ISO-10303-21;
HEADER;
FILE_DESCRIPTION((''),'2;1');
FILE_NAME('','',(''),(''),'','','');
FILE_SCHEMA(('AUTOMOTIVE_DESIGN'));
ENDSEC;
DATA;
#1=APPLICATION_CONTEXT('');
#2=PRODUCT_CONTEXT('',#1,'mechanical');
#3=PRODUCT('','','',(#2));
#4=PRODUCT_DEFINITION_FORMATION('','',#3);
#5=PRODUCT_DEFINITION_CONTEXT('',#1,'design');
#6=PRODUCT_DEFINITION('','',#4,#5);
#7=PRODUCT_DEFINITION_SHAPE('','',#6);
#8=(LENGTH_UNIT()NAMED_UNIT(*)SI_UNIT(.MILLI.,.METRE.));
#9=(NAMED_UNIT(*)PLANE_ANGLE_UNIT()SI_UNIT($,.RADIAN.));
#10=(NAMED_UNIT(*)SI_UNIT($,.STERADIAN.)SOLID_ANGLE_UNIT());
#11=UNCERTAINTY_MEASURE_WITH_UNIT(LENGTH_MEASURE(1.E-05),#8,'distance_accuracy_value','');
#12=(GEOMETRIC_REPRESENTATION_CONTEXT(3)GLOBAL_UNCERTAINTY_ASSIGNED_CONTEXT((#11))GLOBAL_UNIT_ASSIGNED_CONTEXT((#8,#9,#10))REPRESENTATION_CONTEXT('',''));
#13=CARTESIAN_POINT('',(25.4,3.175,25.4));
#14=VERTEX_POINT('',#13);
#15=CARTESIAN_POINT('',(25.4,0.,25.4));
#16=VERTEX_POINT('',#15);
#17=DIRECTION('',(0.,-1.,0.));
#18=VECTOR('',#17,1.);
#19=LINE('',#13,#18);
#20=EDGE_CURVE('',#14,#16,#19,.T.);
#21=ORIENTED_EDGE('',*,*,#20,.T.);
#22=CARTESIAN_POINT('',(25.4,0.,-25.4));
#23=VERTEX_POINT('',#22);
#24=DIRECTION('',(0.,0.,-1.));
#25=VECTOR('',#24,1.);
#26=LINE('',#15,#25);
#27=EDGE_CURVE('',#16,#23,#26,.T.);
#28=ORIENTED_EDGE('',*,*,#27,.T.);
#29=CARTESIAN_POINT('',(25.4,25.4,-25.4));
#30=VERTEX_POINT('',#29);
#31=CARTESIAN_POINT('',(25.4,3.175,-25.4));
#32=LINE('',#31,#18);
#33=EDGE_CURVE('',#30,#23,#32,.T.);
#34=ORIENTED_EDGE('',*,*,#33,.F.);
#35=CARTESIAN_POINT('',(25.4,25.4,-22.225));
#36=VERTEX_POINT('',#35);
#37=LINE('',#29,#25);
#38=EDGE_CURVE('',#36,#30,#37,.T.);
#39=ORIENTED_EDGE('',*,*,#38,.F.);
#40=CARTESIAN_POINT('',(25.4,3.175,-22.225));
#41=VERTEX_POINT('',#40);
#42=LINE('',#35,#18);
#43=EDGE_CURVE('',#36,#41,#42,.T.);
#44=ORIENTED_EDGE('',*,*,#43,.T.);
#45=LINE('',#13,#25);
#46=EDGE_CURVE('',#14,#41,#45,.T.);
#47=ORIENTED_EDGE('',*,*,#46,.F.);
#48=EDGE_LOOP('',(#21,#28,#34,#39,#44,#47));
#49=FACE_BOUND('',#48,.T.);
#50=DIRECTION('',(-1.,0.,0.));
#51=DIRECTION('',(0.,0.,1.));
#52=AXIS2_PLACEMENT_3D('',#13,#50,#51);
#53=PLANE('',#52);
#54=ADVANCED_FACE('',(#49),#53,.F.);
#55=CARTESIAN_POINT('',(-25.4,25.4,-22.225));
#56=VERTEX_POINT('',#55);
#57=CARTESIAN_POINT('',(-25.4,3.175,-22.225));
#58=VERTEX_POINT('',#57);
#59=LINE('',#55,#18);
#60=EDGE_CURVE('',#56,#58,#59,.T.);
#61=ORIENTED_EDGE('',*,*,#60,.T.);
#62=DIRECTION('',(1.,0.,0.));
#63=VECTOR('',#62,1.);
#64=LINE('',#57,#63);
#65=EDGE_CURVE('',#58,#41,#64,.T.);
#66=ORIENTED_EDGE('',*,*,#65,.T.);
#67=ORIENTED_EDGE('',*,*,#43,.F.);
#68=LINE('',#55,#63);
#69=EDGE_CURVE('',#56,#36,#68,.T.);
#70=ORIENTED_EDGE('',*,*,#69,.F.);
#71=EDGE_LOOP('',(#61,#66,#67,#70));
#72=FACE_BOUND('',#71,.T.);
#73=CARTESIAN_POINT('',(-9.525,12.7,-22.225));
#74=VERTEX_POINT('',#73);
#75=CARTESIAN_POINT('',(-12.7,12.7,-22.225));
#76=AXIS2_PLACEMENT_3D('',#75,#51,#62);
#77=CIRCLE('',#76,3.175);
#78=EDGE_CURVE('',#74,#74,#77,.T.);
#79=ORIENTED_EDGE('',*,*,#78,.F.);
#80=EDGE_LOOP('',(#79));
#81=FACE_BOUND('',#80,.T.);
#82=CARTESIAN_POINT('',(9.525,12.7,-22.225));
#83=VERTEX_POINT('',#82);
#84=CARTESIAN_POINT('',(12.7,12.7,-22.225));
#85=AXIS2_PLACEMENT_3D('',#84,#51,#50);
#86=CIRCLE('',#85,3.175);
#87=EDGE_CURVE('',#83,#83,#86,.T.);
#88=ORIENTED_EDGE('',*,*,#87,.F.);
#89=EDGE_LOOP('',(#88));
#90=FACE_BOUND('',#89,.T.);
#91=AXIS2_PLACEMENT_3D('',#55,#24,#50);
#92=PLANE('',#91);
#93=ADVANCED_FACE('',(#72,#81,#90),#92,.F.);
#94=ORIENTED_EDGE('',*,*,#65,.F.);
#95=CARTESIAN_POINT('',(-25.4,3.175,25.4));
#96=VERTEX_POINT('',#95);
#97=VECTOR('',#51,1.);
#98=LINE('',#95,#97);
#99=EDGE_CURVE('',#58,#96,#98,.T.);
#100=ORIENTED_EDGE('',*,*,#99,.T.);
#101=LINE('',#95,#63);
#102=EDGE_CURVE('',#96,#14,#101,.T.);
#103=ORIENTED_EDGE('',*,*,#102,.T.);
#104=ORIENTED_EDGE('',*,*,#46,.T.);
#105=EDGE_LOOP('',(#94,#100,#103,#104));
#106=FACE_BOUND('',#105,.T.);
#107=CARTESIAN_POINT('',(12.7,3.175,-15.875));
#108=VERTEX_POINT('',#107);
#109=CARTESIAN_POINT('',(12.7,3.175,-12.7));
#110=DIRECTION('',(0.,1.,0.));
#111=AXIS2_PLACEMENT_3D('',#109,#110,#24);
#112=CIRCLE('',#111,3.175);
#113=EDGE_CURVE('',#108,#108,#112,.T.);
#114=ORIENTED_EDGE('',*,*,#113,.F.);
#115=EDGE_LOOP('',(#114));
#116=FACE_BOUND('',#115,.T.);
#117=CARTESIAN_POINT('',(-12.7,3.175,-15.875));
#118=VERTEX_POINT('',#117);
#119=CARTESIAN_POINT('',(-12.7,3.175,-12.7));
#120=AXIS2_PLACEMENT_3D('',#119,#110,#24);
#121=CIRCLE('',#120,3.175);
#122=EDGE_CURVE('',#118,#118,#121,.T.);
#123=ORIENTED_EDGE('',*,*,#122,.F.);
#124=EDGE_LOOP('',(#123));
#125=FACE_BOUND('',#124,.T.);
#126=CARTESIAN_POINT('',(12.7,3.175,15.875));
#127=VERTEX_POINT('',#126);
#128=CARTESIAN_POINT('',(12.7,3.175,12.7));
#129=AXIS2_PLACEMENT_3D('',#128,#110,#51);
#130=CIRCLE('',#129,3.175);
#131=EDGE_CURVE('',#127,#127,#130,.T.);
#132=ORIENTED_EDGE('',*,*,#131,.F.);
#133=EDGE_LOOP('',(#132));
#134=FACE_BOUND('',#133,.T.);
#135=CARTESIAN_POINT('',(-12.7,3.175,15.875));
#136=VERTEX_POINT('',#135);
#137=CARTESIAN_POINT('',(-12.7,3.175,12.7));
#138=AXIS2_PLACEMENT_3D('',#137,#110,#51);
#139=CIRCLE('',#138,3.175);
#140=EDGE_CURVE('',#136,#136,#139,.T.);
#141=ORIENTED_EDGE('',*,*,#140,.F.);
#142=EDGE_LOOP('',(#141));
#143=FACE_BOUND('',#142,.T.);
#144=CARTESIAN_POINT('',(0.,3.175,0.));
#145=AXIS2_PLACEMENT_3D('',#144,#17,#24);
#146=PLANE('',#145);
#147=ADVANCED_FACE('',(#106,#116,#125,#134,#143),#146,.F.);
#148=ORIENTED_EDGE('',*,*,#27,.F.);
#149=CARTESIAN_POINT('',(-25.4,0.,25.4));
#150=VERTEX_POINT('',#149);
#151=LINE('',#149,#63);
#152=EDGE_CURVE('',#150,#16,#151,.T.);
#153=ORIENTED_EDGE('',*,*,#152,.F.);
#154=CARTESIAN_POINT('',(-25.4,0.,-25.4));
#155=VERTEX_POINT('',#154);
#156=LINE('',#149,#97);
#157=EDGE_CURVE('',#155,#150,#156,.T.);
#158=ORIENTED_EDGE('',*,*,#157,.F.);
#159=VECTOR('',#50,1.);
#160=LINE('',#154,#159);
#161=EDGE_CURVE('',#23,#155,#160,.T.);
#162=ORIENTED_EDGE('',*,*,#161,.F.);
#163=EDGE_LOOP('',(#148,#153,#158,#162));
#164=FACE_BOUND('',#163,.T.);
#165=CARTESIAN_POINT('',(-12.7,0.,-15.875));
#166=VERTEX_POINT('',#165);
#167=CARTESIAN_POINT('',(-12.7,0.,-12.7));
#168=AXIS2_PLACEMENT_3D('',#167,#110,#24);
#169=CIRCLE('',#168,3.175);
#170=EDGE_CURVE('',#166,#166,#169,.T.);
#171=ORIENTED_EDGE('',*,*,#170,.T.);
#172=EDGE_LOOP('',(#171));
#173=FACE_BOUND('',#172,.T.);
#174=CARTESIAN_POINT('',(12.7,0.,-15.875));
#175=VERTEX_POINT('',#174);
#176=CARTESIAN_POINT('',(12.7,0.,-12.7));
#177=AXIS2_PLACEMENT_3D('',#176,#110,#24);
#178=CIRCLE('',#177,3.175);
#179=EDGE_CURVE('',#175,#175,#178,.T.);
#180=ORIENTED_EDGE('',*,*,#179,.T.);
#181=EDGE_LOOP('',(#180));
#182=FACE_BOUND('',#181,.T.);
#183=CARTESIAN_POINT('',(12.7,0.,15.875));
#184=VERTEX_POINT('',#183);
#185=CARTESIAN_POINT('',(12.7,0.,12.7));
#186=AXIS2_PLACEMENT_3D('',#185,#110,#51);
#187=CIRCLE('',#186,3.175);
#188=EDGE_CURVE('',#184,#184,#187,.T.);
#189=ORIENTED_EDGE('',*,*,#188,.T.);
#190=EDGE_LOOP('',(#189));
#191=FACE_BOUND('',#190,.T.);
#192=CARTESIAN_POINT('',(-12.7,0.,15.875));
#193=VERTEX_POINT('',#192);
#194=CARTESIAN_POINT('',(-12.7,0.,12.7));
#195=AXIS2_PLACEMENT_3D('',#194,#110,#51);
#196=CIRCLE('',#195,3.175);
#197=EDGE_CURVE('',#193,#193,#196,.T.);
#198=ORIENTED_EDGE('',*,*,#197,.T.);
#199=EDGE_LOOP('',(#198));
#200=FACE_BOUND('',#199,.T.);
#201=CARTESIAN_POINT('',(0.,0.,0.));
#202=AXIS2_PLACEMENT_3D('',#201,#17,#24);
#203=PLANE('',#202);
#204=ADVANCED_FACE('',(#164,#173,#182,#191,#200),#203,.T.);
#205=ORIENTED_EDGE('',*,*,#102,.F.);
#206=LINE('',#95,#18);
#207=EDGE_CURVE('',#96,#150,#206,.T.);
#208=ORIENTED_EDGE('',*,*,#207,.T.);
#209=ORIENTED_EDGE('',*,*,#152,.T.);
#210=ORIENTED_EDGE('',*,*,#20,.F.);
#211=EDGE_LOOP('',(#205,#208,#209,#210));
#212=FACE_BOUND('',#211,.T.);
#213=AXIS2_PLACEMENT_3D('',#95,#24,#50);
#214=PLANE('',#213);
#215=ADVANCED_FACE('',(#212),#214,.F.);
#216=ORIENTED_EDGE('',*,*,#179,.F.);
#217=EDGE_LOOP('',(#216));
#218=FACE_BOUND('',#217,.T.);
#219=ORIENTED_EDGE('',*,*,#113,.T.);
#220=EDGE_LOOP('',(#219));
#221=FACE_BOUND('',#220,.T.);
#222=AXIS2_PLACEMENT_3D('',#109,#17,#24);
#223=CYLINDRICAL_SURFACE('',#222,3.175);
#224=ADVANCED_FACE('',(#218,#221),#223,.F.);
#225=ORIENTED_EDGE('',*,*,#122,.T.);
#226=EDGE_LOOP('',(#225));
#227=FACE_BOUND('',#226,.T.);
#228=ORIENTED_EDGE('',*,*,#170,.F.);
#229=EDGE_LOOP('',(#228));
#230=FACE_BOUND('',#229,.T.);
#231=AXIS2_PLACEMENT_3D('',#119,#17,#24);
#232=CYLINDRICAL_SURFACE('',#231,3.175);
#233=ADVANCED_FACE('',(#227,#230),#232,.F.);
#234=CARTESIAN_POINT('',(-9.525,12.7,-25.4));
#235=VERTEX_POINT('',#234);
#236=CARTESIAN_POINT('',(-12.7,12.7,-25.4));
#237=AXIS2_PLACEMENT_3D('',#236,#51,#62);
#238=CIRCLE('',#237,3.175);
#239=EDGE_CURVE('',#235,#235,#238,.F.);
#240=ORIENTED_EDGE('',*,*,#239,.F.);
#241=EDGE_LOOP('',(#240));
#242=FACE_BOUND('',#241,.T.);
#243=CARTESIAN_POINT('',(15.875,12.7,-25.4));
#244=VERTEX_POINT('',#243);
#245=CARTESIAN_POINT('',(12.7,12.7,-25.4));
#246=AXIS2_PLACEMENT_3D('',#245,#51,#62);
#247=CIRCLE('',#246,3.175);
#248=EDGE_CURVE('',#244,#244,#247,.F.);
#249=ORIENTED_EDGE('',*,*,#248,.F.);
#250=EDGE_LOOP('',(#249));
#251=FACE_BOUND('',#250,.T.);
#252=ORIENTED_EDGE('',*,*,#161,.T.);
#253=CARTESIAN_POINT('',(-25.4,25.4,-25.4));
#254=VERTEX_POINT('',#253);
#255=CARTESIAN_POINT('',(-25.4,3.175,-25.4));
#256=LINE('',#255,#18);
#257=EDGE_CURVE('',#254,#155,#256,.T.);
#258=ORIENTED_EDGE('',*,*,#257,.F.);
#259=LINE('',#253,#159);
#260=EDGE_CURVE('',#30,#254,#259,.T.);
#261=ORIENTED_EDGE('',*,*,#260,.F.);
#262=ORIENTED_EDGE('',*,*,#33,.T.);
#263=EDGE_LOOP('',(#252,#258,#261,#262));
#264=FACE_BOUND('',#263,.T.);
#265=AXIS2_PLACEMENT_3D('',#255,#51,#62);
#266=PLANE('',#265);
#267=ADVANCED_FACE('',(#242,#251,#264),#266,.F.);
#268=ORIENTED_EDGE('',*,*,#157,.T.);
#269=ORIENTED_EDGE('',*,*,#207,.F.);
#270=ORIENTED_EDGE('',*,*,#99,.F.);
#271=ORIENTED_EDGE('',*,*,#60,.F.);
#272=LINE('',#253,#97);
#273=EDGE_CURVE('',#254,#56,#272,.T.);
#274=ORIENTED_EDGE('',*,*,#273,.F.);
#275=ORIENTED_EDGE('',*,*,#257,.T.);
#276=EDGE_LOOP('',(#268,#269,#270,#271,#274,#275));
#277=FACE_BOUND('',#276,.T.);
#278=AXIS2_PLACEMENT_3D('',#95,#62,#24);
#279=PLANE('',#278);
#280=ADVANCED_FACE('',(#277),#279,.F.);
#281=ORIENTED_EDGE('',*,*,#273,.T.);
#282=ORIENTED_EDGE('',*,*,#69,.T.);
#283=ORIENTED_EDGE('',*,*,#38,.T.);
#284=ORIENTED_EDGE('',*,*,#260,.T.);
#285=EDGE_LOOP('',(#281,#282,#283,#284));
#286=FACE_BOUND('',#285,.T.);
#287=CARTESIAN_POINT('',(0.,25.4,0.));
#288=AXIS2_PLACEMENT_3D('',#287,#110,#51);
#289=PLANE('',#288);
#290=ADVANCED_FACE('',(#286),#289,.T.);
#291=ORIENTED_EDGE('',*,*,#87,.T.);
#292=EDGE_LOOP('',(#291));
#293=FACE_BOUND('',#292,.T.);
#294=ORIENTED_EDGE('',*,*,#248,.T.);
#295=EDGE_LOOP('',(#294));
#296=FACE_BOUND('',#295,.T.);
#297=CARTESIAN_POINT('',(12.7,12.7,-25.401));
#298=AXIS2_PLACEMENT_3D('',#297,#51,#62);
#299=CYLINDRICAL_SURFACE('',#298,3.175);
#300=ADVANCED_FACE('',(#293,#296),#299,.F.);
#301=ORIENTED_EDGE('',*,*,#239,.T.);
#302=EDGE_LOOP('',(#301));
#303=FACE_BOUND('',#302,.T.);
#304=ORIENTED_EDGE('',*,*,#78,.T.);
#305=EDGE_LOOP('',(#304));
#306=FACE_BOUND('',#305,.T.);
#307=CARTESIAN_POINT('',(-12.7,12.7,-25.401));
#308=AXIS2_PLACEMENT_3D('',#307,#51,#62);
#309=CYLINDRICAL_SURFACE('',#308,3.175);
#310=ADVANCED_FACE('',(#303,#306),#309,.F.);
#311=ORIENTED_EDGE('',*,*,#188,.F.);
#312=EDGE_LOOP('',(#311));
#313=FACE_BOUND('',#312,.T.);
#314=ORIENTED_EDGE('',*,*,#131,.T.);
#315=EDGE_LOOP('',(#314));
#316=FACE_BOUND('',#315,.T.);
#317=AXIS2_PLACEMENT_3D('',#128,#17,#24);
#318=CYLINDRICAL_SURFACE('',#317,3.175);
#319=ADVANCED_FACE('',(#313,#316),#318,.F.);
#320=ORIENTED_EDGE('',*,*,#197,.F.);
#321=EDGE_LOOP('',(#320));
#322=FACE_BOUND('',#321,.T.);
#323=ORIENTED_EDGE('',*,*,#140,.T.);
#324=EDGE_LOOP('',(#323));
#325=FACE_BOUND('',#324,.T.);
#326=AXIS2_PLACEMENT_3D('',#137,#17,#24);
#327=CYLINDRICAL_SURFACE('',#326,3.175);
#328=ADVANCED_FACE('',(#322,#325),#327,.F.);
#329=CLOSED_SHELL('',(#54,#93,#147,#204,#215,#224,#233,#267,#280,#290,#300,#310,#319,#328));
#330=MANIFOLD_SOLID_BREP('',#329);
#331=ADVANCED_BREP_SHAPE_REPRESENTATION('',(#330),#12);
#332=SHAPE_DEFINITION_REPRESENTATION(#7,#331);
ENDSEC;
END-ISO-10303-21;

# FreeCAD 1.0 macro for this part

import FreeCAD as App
import Part
import Sketcher
Q = App.Units.Quantity


def add_polygon(sketch, points):
    """Adds a closed chain of lines whose ends are joined by coincident constraints."""
    first, n = sketch.GeometryCount, len(points)
    for a, b in zip(points, points[1:] + points[:1]):
        sketch.addGeometry(Part.LineSegment(App.Vector(*a, 0), App.Vector(*b, 0)), False)
    for i in range(n):
        sketch.addConstraint(Sketcher.Constraint("Coincident", first + i, 2, first + (i + 1) % n, 1))

doc = App.newDocument("Part")
body = doc.addObject("PartDesign::Body", "Body")

# Sketch on XZ plane
sketch1 = body.newObject("Sketcher::SketchObject", "Sketch")
sketch1.AttachmentSupport = (doc.getObject("XZ_Plane"), [""])
sketch1.MapMode = "FlatFace"
add_polygon(sketch1, [(-25.4, -25.4), (-25.4, 25.4), (25.4, 25.4), (25.4, -25.4)])  # lines 0-3
sketch1.addGeometry(Part.Circle(App.Vector(-12.7, 12.7, 0), App.Vector(0, 0, 1), 3.2), False)  # 4
sketch1.addGeometry(Part.Circle(App.Vector(12.7, 12.7, 0), App.Vector(0, 0, 1), 3.2), False)  # 5
sketch1.addGeometry(Part.Circle(App.Vector(-12.7, -12.7, 0), App.Vector(0, 0, 1), 3.2), False)  # 6
sketch1.addGeometry(Part.Circle(App.Vector(12.7, -12.7, 0), App.Vector(0, 0, 1), 3.2), False)  # 7
sketch1.addConstraint(Sketcher.Constraint("Vertical", 0))
sketch1.addConstraint(Sketcher.Constraint("Horizontal", 1))
sketch1.addConstraint(Sketcher.Constraint("Vertical", 2))
sketch1.addConstraint(Sketcher.Constraint("Horizontal", 3))
sketch1.addConstraint(Sketcher.Constraint("Equal", 4, 5))
sketch1.addConstraint(Sketcher.Constraint("Equal", 5, 6))
sketch1.addConstraint(Sketcher.Constraint("Equal", 6, 7))
sketch1.addConstraint(Sketcher.Constraint("Symmetric", 5, 3, 6, 3, -1, 1))
sketch1.addConstraint(Sketcher.Constraint("Symmetric", 4, 3, 7, 3, -1, 1))
sketch1.addConstraint(Sketcher.Constraint("Symmetric", 0, 2, 2, 2, -1, 1))
sketch1.addConstraint(Sketcher.Constraint("Symmetric", 4, 3, 5, 3, -2))
sketch1.addConstraint(Sketcher.Constraint("Equal", 3, 0))
sketch1.addConstraint(Sketcher.Constraint("Diameter", 4, Q("0.25 in")))
sketch1.addConstraint(Sketcher.Constraint("DistanceX", 1, 1, 1, 2, Q("2 in")))
sketch1.addConstraint(Sketcher.Constraint("DistanceX", 4, 3, 5, 3, Q("1 in")))
sketch1.addConstraint(Sketcher.Constraint("DistanceY", 6, 3, 4, 3, Q("1 in")))
pad1 = body.newObject("PartDesign::Pad", "Pad")
pad1.Profile = sketch1
pad1.Length = Q("0.125 in")
pad1.Reversed = True

# Sketch on XZ plane
sketch2 = body.newObject("Sketcher::SketchObject", "Sketch001")
sketch2.AttachmentSupport = (doc.getObject("XZ_Plane"), [""])
sketch2.MapMode = "FlatFace"
sketch2.AttachmentOffset = App.Placement(App.Vector(0, 0, -0.125 * 25.4), App.Rotation())
add_polygon(sketch2, [(-25.4, -25.4), (-25.4, -22.2), (25.4, -22.2), (25.4, -25.4)])  # lines 0-3
sketch2.addConstraint(Sketcher.Constraint("Vertical", 0))
sketch2.addConstraint(Sketcher.Constraint("Horizontal", 1))
sketch2.addConstraint(Sketcher.Constraint("Vertical", 2))
sketch2.addConstraint(Sketcher.Constraint("Horizontal", 3))
sketch2.addConstraint(Sketcher.Constraint("DistanceX", 1, 1, 1, 2, Q("2 in")))
sketch2.addConstraint(Sketcher.Constraint("DistanceX", 0, 2, -1, 1, Q("1 in")))
sketch2.addConstraint(Sketcher.Constraint("DistanceY", 2, 2, -1, 1, Q("1 in")))
sketch2.addConstraint(Sketcher.Constraint("DistanceY", 0, 1, 0, 2, Q("0.125 in")))
pad2 = body.newObject("PartDesign::Pad", "Pad001")
pad2.Profile = sketch2
pad2.Length = Q("0.875 in")
pad2.Reversed = True

# Sketch on XY plane
sketch3 = body.newObject("Sketcher::SketchObject", "Sketch002")
sketch3.AttachmentSupport = (doc.getObject("XY_Plane"), [""])
sketch3.MapMode = "FlatFace"
sketch3.AttachmentOffset = App.Placement(App.Vector(0, 0, -0.875 * 25.4), App.Rotation())
sketch3.addGeometry(Part.Circle(App.Vector(-12.7, 12.7, 0), App.Vector(0, 0, 1), 3.2), False)
sketch3.addConstraint(Sketcher.Constraint("Diameter", 0, Q("0.25 in")))
sketch3.addConstraint(Sketcher.Constraint("DistanceX", 0, 3, -1, 1, Q("0.5 in")))
sketch3.addConstraint(Sketcher.Constraint("DistanceY", -1, 1, 0, 3, Q("0.5 in")))
pocket1 = body.newObject("PartDesign::Pocket", "Pocket")
pocket1.Profile = sketch3
pocket1.Type = "UpToFirst"

# Sketch on XY plane
sketch4 = body.newObject("Sketcher::SketchObject", "Sketch003")
sketch4.AttachmentSupport = (doc.getObject("XY_Plane"), [""])
sketch4.MapMode = "FlatFace"
sketch4.AttachmentOffset = App.Placement(App.Vector(0, 0, -0.875 * 25.4), App.Rotation())
sketch4.addGeometry(Part.Circle(App.Vector(12.7, 12.7, 0), App.Vector(0, 0, 1), 3.2), False)
sketch4.addConstraint(Sketcher.Constraint("Diameter", 0, Q("0.25 in")))
sketch4.addConstraint(Sketcher.Constraint("DistanceX", -1, 1, 0, 3, Q("0.5 in")))
sketch4.addConstraint(Sketcher.Constraint("DistanceY", -1, 1, 0, 3, Q("0.5 in")))
pocket2 = body.newObject("PartDesign::Pocket", "Pocket001")
pocket2.Profile = sketch4
pocket2.Type = "UpToFirst"

doc.recompute()
